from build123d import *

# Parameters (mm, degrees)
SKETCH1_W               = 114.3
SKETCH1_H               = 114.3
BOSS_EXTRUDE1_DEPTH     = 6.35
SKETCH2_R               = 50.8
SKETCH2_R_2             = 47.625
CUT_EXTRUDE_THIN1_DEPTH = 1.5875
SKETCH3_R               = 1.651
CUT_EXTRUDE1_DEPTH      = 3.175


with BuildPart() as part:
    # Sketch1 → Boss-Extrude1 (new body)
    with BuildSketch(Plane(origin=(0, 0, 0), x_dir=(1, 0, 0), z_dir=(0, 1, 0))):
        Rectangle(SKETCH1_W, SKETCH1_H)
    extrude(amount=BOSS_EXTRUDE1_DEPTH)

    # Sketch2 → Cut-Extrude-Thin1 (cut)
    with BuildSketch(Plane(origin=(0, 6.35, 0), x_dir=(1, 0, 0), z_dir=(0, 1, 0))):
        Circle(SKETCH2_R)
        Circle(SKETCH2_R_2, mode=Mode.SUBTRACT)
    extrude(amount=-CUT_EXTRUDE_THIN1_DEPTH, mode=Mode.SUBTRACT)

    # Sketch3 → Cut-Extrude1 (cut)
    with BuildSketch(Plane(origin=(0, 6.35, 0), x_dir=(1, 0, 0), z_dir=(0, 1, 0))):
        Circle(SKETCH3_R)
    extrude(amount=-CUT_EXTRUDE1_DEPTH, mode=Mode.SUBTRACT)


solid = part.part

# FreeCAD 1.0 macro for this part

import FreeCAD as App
import Part
import Sketcher

V = App.Vector
Q = App.Units.Quantity


def add_polygon(sketch, points):
    """Adds a closed chain of lines whose ends are joined by coincident constraints."""
    first, n = sketch.GeometryCount, len(points)
    for a, b in zip(points, points[1:] + points[:1]):
        sketch.addGeometry(Part.LineSegment(App.Vector(*a, 0), App.Vector(*b, 0)), False)
    for i in range(n):
        sketch.addConstraint(Sketcher.Constraint("Coincident", first + i, 2, first + (i + 1) % n, 1))

doc = App.newDocument("Part")
body = doc.addObject("PartDesign::Body", "Body")

# Sketch on XZ plane
sketch1 = body.newObject("Sketcher::SketchObject", "Sketch")
sketch1.AttachmentSupport = (doc.getObject("XZ_Plane"), [""])
sketch1.MapMode = "FlatFace"
add_polygon(sketch1, [(-57.15, -57.15), (-57.15, 57.15), (57.15, 57.15), (57.15, -57.15)])  # lines 0-3
sketch1.addConstraint([
    Sketcher.Constraint("Vertical", 0),
    Sketcher.Constraint("Horizontal", 1),
    Sketcher.Constraint("Vertical", 2),
    Sketcher.Constraint("Horizontal", 3),
    Sketcher.Constraint("Symmetric", 0, 2, 2, 2, -1, 1),
    Sketcher.Constraint("Equal", 3, 0),
    Sketcher.Constraint("DistanceX", 1, 1, 1, 2, Q("4.5 in")),
])
pad1 = body.newObject("PartDesign::Pad", "Pad")
pad1.Profile = sketch1
pad1.Length = Q("0.25 in")
pad1.Reversed = True

# Sketch on XZ plane
sketch2 = body.newObject("Sketcher::SketchObject", "Sketch001")
sketch2.AttachmentSupport = (doc.getObject("XZ_Plane"), [""])
sketch2.MapMode = "FlatFace"
sketch2.AttachmentOffset = App.Placement(V(0, 0, -0.25 * 25.4), App.Rotation())
sketch2.addGeometry([
    Part.Circle(V(0, 0, 0), V(0, 0, 1), 50.8),
    Part.Circle(V(0, 0, 0), V(0, 0, 1), 47.625),
], False)
sketch2.addConstraint([
    Sketcher.Constraint("Coincident", 0, 3, -1, 1),
    Sketcher.Constraint("Coincident", 1, 3, -1, 1),
    Sketcher.Constraint("Diameter", 0, Q("4 in")),
    Sketcher.Constraint("Diameter", 1, Q("3.75 in")),
])
pocket1 = body.newObject("PartDesign::Pocket", "Pocket")
pocket1.Profile = sketch2
pocket1.Length = Q("0.0625 in")
pocket1.Reversed = True

# Sketch on XZ plane
sketch3 = body.newObject("Sketcher::SketchObject", "Sketch002")
sketch3.AttachmentSupport = (doc.getObject("XZ_Plane"), [""])
sketch3.MapMode = "FlatFace"
sketch3.AttachmentOffset = App.Placement(V(0, 0, -0.25 * 25.4), App.Rotation())
sketch3.addGeometry(Part.Circle(V(0, 0, 0), V(0, 0, 1), 1.651), False)
sketch3.addConstraint([
    Sketcher.Constraint("Coincident", 0, 3, -1, 1),
    Sketcher.Constraint("Diameter", 0, Q("0.13 in")),
])
pocket2 = body.newObject("PartDesign::Pocket", "Pocket001")
pocket2.Profile = sketch3
pocket2.Length = Q("0.125 in")
pocket2.Reversed = True

doc.recompute()
